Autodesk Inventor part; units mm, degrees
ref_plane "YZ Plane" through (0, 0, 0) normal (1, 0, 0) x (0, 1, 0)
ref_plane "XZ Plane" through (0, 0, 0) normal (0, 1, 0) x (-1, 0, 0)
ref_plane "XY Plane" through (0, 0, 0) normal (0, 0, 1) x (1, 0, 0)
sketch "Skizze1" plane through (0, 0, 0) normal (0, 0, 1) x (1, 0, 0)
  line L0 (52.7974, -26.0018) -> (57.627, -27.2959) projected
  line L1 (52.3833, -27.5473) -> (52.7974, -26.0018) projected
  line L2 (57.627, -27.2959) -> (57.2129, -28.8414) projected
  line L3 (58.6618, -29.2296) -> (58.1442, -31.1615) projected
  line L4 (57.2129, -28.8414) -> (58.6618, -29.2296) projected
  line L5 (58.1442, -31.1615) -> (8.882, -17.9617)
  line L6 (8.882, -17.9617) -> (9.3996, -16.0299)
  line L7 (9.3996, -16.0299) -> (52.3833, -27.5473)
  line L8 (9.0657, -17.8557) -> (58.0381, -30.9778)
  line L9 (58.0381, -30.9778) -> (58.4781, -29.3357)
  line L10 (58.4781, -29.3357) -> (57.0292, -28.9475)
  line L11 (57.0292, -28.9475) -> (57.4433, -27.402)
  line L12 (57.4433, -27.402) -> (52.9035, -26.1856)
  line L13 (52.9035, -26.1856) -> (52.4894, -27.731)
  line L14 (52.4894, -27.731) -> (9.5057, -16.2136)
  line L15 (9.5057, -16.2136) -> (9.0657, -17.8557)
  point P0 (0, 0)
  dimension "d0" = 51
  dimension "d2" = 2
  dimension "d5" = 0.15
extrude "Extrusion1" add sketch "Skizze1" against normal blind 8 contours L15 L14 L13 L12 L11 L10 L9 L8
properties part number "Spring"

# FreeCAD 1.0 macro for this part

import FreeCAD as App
import Part
import Sketcher
Q = App.Units.Quantity

doc = App.newDocument("Part")
params = doc.addObject("Spreadsheet::Sheet", "Params")
for row, (alias, value) in enumerate([
    ("sketch1_length", "1.7 mm"),
    ("sketch1_length2", "50.7 mm"),
    ("sketch1_length3", "1.5 mm"),
    ("sketch1_length4", "1.6 mm"),
    ("sketch1_length5", "4.7 mm"),
    ("pad1_length", "8 mm"),
], start=1):
    params.set(f"A{row}", alias)
    params.set(f"B{row}", "=" + value)
    params.setAlias(f"B{row}", alias)

body = doc.addObject("PartDesign::Body", "Body")

# Sketch on XY plane
sketch1 = doc.addObject("Sketcher::SketchObject", "Sketch")
body.addObject(sketch1)
sketch1.AttachmentSupport = (doc.XY_Plane, [""])
sketch1.MapMode = "FlatFace"
sketch1.addGeometry([
    Part.LineSegment(App.Vector(9.5, -16.2, 0), App.Vector(9.1, -17.9, 0)),  # 0
    Part.LineSegment(App.Vector(9.1, -17.9, 0), App.Vector(58, -31, 0)),  # 1
    Part.LineSegment(App.Vector(58, -31, 0), App.Vector(58.5, -29.3, 0)),  # 2
    Part.LineSegment(App.Vector(58.5, -29.3, 0), App.Vector(57, -28.9, 0)),  # 3
    Part.LineSegment(App.Vector(57, -28.9, 0), App.Vector(57.4, -27.4, 0)),  # 4
    Part.LineSegment(App.Vector(57.4, -27.4, 0), App.Vector(52.9, -26.2, 0)),  # 5
    Part.LineSegment(App.Vector(52.9, -26.2, 0), App.Vector(52.5, -27.7, 0)),  # 6
    Part.LineSegment(App.Vector(52.5, -27.7, 0), App.Vector(9.5, -16.2, 0)),  # 7
], False)
sketch1.addConstraint([
    Sketcher.Constraint("Coincident", 0, 2, 1, 1),
    Sketcher.Constraint("Coincident", 1, 2, 2, 1),
    Sketcher.Constraint("Coincident", 2, 2, 3, 1),
    Sketcher.Constraint("Coincident", 3, 2, 4, 1),
    Sketcher.Constraint("Coincident", 4, 2, 5, 1),
    Sketcher.Constraint("Coincident", 5, 2, 6, 1),
    Sketcher.Constraint("Coincident", 6, 2, 7, 1),
    Sketcher.Constraint("Coincident", 7, 2, 0, 1),
    Sketcher.Constraint("Perpendicular", 0, 1),
    Sketcher.Constraint("Perpendicular", 1, 2),
    Sketcher.Constraint("Perpendicular", 2, 3),
    Sketcher.Constraint("Perpendicular", 3, 4),
    Sketcher.Constraint("Perpendicular", 4, 5),
    Sketcher.Constraint("Perpendicular", 5, 6),
    Sketcher.Constraint("Perpendicular", 6, 7),
    Sketcher.Constraint("Equal", 0, 2),
    Sketcher.Constraint("Angle", 0, Q("-105 deg")),
    Sketcher.Constraint("Distance", 0, Q("1.7 mm")),
    Sketcher.Constraint("Distance", 1, Q("50.7 mm")),
    Sketcher.Constraint("Distance", 3, Q("1.5 mm")),
    Sketcher.Constraint("Distance", 4, Q("1.6 mm")),
    Sketcher.Constraint("Distance", 5, Q("4.7 mm")),
    Sketcher.Constraint("DistanceX", -1, 1, 1, 2, Q("58.038 mm")),
    Sketcher.Constraint("DistanceY", 4, 2, -1, 1, Q("27.402 mm")),
])
sketch1.setExpression("Constraints[17]", "Params.sketch1_length")
sketch1.setExpression("Constraints[18]", "Params.sketch1_length2")
sketch1.setExpression("Constraints[19]", "Params.sketch1_length3")
sketch1.setExpression("Constraints[20]", "Params.sketch1_length4")
sketch1.setExpression("Constraints[21]", "Params.sketch1_length5")
pad1 = doc.addObject("PartDesign::Pad", "Pad")
body.addObject(pad1)
pad1.Profile = sketch1
pad1.setExpression("Length", "Params.pad1_length")
pad1.Reversed = True

doc.recompute()
